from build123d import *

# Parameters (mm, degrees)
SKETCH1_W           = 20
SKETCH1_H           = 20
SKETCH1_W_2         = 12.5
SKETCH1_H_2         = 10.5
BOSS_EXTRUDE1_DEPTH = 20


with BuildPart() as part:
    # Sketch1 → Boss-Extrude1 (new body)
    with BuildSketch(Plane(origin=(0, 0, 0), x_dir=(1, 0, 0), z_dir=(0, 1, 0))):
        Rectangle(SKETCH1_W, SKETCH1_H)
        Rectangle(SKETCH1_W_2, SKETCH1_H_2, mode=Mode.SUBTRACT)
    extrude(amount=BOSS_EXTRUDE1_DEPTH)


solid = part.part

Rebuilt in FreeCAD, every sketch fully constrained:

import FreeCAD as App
import Part
import Sketcher

V = App.Vector


def add_polygon(sketch, points):
    """Adds a closed chain of lines whose ends are joined by coincident constraints."""
    first, n = sketch.GeometryCount, len(points)
    for a, b in zip(points, points[1:] + points[:1]):
        sketch.addGeometry(Part.LineSegment(App.Vector(*a, 0), App.Vector(*b, 0)), False)
    for i in range(n):
        sketch.addConstraint(Sketcher.Constraint("Coincident", first + i, 2, first + (i + 1) % n, 1))

doc = App.newDocument("Part")
body = doc.addObject("PartDesign::Body", "Body")

sketch1 = body.newObject("Sketcher::SketchObject", "Sketch")
sketch1.AttachmentSupport = (doc.getObject("XZ_Plane"), [""])
sketch1.MapMode = "FlatFace"
add_polygon(sketch1, [(-10, -10), (-10, 10), (10, 10), (10, -10)])
add_polygon(sketch1, [(6, 5), (-6, 5), (-6, -5), (6, -5)])
sketch1.addConstraint([
    Sketcher.Constraint("Vertical", 0),
    Sketcher.Constraint("Horizontal", 1),
    Sketcher.Constraint("Vertical", 2),
    Sketcher.Constraint("Horizontal", 3),
    Sketcher.Constraint("Horizontal", 4),
    Sketcher.Constraint("Vertical", 5),
    Sketcher.Constraint("Horizontal", 6),
    Sketcher.Constraint("Vertical", 7),
    Sketcher.Constraint("Symmetric", 0, 2, 2, 2, -1, 1),
    Sketcher.Constraint("Symmetric", 4, 2, 6, 2, -1, 1),
    Sketcher.Constraint("Equal", 3, 0),
    Sketcher.Constraint("DistanceX", 1, 1, 1, 2, 20.0),
    Sketcher.Constraint("DistanceX", 4, 2, 4, 1, 12.5),
    Sketcher.Constraint("DistanceY", 5, 2, 5, 1, 10.5),
])
pad1 = body.newObject("PartDesign::Pad", "Pad")
pad1.Profile = sketch1
pad1.Length = 20
pad1.Reversed = True

doc.recompute()
